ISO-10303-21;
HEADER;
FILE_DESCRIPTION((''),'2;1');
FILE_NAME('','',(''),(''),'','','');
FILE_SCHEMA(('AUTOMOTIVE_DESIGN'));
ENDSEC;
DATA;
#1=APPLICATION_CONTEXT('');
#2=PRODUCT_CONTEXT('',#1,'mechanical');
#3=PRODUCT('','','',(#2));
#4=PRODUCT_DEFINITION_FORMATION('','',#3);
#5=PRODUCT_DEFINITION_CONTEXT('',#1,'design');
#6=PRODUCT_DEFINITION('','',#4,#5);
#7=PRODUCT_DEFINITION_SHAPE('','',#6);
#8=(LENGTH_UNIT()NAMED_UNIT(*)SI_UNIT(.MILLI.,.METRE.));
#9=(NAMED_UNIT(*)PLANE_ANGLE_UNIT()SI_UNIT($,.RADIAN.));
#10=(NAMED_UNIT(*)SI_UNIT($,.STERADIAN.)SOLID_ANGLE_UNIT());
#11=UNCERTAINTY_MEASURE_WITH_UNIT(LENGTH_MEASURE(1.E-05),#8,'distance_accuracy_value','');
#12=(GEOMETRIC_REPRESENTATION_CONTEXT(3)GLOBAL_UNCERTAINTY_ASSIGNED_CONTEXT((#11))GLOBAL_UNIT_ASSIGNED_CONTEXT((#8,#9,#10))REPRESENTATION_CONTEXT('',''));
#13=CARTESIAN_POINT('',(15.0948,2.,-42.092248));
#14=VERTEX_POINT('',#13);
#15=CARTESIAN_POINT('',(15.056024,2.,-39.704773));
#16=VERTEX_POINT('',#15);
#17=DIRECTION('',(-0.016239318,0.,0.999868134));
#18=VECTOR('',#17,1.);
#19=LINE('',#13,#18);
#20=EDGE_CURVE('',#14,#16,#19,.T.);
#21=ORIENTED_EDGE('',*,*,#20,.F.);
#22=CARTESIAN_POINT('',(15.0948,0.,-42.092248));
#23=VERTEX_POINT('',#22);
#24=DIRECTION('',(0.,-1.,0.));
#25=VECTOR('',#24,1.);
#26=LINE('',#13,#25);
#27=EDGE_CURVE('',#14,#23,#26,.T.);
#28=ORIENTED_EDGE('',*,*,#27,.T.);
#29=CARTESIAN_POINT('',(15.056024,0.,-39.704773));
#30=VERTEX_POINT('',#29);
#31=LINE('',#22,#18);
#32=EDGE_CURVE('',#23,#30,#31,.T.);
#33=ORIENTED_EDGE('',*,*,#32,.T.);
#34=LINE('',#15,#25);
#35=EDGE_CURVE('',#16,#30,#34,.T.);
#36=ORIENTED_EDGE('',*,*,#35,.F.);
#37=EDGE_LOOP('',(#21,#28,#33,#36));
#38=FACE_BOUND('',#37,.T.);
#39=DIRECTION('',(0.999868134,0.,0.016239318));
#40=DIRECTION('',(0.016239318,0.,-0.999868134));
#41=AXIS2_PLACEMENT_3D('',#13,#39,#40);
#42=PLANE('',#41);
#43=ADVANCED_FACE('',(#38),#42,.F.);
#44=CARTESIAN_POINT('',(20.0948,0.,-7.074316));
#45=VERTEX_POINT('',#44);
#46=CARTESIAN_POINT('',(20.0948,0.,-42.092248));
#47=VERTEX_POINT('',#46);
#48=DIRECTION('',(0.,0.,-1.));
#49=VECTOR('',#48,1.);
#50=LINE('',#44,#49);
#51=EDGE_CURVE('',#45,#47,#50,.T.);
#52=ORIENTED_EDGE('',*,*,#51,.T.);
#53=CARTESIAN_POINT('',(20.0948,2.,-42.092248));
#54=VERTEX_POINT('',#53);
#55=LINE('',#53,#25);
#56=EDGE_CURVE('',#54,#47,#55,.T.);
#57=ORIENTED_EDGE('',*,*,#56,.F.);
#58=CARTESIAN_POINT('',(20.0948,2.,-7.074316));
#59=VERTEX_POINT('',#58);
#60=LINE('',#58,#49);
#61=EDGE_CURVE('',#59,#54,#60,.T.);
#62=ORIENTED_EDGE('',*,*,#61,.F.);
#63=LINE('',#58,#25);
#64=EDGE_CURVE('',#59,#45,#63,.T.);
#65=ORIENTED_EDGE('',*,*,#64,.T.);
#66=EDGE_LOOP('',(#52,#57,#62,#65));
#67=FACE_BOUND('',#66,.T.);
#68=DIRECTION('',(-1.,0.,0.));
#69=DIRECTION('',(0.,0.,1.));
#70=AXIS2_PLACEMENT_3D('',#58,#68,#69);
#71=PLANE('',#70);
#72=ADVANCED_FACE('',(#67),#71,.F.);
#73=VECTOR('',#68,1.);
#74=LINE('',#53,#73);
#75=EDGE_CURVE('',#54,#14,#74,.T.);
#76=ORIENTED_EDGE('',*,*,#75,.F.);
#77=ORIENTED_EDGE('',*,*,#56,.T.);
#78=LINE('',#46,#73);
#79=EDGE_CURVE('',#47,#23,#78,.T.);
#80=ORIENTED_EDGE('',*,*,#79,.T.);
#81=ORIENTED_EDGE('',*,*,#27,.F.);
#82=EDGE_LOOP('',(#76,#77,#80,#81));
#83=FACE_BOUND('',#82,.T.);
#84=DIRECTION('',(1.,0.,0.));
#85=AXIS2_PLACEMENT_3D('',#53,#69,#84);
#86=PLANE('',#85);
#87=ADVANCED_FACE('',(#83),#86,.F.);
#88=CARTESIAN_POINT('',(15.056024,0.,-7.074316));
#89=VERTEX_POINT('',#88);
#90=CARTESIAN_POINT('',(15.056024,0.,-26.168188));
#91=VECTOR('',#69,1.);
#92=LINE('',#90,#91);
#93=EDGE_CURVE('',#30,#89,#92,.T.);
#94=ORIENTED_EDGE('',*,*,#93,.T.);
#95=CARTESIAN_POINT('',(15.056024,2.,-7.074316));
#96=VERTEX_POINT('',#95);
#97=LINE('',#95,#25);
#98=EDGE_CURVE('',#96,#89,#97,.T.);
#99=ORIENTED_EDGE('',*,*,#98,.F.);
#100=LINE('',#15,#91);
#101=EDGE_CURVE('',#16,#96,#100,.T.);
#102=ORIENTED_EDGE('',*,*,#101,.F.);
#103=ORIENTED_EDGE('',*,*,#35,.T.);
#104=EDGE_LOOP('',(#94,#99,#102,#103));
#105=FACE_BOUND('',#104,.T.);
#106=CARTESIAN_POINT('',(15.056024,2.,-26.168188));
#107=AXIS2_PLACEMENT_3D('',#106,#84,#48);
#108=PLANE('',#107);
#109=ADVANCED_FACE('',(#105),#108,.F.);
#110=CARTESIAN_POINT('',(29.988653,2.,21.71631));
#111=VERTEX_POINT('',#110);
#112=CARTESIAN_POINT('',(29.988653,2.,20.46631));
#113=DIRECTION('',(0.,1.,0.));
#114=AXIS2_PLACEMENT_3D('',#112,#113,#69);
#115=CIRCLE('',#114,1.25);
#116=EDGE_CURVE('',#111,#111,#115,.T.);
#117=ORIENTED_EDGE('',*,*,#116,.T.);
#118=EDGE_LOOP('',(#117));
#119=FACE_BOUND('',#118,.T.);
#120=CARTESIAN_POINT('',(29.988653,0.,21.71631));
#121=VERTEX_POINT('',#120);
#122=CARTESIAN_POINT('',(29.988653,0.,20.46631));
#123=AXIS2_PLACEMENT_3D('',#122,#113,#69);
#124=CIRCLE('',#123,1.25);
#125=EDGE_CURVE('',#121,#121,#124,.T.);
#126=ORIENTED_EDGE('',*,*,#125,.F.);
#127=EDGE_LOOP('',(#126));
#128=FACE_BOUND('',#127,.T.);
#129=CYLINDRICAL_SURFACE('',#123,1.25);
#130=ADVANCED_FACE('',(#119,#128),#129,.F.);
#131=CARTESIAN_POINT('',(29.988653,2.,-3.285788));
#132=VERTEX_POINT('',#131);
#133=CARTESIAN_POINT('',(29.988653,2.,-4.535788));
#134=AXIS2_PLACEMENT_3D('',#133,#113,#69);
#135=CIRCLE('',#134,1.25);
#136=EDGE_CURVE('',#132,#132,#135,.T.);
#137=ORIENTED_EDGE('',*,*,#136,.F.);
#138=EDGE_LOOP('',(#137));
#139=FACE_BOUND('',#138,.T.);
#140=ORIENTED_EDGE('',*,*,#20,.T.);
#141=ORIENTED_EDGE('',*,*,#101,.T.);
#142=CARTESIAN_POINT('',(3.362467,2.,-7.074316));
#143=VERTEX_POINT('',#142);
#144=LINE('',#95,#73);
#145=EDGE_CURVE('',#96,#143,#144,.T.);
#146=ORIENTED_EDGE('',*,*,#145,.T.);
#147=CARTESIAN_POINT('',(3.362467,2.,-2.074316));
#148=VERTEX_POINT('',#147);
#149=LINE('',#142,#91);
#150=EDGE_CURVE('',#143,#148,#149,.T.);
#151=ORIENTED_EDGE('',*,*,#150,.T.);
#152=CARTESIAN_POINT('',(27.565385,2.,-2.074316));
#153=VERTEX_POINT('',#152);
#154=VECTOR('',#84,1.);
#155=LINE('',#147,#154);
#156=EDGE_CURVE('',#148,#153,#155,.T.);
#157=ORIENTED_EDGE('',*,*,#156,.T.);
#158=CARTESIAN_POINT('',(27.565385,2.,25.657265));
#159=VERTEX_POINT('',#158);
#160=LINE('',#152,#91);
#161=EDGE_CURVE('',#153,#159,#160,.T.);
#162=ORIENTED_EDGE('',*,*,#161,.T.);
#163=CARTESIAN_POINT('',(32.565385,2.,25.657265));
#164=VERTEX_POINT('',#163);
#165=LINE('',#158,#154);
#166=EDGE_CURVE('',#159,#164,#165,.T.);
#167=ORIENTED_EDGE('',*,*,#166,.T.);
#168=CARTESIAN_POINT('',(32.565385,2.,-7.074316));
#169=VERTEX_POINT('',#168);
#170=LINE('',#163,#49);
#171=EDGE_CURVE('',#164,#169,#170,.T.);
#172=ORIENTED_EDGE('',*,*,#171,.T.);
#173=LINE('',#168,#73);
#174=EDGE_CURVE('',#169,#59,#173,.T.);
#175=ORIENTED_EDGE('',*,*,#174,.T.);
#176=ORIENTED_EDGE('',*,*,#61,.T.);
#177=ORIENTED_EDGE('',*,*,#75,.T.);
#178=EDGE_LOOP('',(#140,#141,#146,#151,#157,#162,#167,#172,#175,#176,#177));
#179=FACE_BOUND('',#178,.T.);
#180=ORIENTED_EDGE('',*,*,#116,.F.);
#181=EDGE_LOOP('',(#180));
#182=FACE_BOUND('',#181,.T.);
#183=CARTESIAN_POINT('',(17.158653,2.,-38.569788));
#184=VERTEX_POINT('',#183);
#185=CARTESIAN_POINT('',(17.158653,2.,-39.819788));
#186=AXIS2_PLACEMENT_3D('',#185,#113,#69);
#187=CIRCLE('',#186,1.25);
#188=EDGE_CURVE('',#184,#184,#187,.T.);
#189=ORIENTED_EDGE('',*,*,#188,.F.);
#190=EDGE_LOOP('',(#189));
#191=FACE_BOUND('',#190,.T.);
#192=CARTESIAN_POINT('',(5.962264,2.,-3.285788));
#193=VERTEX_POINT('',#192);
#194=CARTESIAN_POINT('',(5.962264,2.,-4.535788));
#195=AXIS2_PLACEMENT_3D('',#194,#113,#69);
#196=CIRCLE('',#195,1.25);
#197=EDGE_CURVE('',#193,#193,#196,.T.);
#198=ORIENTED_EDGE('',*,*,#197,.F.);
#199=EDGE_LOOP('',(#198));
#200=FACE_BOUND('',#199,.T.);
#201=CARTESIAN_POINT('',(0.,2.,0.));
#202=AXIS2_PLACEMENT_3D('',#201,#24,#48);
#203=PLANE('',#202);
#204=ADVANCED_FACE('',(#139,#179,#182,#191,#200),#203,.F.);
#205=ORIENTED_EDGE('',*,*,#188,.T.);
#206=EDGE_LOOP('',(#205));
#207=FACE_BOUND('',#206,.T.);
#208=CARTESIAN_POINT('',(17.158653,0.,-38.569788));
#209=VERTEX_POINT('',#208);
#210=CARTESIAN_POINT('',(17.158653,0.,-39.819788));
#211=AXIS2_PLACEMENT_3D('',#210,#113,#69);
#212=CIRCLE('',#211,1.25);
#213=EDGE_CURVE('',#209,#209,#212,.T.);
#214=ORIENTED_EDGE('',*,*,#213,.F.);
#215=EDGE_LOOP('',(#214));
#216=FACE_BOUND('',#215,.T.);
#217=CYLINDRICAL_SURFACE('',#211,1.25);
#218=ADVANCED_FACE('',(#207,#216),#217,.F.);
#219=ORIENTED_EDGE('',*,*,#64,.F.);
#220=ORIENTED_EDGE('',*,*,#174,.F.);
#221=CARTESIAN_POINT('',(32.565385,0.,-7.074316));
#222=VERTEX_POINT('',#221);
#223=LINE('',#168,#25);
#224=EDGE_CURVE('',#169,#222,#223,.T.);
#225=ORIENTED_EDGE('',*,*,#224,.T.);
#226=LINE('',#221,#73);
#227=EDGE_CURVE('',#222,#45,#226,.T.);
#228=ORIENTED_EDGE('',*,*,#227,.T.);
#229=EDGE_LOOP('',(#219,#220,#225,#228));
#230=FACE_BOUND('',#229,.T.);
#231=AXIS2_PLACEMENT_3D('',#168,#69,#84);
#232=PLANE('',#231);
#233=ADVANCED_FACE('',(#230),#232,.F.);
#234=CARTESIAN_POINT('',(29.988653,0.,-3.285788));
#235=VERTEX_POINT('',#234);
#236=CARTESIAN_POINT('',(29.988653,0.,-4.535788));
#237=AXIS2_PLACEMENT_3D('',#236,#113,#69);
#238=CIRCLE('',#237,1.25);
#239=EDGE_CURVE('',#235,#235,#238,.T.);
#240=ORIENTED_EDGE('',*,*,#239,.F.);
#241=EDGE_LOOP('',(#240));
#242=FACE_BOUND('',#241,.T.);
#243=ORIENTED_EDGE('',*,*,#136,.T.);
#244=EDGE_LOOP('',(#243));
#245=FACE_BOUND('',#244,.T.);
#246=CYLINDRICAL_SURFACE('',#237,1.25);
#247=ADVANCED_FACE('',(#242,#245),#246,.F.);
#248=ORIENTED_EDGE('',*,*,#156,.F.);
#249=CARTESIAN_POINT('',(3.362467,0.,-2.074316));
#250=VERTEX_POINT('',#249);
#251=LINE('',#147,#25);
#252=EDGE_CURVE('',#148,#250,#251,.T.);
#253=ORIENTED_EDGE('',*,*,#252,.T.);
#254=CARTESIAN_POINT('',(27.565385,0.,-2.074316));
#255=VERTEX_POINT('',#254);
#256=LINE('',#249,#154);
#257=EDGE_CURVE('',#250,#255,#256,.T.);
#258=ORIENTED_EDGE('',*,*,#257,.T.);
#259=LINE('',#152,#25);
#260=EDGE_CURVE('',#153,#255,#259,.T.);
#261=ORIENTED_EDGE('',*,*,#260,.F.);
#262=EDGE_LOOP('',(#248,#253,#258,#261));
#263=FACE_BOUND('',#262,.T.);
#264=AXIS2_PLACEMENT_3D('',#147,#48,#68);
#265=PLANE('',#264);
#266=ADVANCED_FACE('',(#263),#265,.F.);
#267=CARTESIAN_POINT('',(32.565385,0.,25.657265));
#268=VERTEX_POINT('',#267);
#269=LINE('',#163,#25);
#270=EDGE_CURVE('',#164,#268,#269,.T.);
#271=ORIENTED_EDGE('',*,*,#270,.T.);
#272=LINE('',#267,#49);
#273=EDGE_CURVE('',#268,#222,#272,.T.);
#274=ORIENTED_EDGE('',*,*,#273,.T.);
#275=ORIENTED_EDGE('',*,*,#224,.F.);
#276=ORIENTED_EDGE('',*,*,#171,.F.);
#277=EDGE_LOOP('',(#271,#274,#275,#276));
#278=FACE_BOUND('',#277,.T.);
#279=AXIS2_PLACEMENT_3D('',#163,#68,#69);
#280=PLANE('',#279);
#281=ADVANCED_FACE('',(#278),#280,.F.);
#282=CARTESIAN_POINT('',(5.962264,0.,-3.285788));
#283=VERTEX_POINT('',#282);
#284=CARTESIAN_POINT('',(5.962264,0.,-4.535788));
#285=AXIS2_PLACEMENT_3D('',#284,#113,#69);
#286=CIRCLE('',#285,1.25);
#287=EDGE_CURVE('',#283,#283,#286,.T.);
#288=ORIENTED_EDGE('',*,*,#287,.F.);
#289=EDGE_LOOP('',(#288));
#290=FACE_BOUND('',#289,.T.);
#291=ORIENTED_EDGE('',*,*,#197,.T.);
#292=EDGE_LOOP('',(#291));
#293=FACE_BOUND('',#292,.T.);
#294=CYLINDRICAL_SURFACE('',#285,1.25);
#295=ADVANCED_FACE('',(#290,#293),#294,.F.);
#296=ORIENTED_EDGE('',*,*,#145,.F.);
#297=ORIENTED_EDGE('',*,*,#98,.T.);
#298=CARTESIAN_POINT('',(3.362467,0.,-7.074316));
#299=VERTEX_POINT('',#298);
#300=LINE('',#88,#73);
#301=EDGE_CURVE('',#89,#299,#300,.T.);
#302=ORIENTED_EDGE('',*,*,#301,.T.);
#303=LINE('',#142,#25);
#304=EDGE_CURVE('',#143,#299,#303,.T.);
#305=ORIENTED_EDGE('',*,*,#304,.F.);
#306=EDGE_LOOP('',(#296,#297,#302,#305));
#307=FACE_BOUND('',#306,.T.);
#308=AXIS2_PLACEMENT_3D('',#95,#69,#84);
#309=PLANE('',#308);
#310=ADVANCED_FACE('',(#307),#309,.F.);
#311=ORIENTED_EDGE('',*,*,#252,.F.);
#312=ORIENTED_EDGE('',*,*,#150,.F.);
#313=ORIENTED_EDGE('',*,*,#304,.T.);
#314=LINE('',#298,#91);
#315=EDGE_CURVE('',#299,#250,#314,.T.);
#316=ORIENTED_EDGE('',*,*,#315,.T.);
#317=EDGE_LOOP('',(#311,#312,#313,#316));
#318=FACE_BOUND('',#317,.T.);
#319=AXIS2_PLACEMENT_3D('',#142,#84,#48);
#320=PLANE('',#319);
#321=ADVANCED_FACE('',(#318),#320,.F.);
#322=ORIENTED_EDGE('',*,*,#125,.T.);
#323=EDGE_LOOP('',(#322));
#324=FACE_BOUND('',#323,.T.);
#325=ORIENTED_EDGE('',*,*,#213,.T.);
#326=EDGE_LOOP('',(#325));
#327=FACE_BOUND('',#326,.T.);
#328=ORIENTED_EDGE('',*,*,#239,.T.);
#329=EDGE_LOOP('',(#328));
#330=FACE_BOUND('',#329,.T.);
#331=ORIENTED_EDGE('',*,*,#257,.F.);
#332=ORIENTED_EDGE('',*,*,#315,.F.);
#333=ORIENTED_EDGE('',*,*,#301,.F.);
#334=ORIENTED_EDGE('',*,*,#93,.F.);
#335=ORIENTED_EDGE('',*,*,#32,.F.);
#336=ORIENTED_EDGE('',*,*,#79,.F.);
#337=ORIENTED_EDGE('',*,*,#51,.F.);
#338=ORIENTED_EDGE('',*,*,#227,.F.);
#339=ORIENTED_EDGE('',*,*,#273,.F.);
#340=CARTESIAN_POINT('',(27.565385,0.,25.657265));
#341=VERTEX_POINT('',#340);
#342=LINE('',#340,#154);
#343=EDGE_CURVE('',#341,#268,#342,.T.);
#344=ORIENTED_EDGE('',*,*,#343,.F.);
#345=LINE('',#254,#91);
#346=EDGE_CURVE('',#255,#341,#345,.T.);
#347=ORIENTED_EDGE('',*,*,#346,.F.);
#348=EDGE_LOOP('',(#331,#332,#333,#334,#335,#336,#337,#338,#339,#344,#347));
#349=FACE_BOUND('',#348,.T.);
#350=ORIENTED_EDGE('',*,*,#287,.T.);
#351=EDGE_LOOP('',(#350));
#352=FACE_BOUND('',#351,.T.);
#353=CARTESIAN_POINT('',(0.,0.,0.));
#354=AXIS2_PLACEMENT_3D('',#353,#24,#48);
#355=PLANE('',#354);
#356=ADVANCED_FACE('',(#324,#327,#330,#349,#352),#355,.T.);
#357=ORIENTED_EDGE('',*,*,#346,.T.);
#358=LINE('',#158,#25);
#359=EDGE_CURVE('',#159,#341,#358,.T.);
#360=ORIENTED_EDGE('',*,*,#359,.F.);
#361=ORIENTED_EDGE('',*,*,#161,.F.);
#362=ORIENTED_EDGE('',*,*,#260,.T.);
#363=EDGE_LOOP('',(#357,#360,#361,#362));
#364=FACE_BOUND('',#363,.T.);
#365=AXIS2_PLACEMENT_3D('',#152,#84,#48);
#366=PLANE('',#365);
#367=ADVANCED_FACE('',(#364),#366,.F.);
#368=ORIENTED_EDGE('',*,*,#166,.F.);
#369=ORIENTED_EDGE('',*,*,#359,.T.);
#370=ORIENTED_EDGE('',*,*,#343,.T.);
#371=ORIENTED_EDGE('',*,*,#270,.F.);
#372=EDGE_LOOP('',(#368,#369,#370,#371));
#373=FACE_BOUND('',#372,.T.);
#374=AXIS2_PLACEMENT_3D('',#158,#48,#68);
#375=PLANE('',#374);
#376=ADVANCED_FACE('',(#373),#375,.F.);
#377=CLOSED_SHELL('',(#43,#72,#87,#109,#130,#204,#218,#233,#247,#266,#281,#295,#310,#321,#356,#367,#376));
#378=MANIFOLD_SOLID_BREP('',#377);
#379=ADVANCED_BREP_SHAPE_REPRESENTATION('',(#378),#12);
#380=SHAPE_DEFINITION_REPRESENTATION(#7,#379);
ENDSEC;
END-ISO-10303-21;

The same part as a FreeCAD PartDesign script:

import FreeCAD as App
import Part
import Sketcher

V = App.Vector


def add_polygon(sketch, points):
    """Adds a closed chain of lines whose ends are joined by coincident constraints."""
    first, n = sketch.GeometryCount, len(points)
    for a, b in zip(points, points[1:] + points[:1]):
        sketch.addGeometry(Part.LineSegment(App.Vector(*a, 0), App.Vector(*b, 0)), False)
    for i in range(n):
        sketch.addConstraint(Sketcher.Constraint("Coincident", first + i, 2, first + (i + 1) % n, 1))

doc = App.newDocument("Part")
params = doc.addObject("Spreadsheet::Sheet", "Params")
for row, (alias, value) in enumerate([
    ("sketch1_width", "5 mm"),
    ("pad1_length", "2 mm"),
    ("sketch2_diameter", "2.5 mm"),
    ("pocket1_length", "2 mm"),
], start=1):
    params.set(f"A{row}", alias)
    params.set(f"B{row}", "=" + value)
    params.setAlias(f"B{row}", alias)

body = doc.addObject("PartDesign::Body", "Body")

sketch1 = doc.addObject("Sketcher::SketchObject", "Sketch")
body.addObject(sketch1)
sketch1.AttachmentSupport = (doc.XZ_Plane, [""])
sketch1.MapMode = "FlatFace"
add_polygon(sketch1, [(15.1, -39.7), (15.1, -7.1), (3.4, -7.1), (3.4, -2.1), (27.6, -2.1), (27.6, 25.7), (32.6, 25.7), (32.6, -7.1), (20.1, -7.1), (20.1, -42.1), (15.1, -42.1)])
sketch1.addConstraint(Sketcher.Constraint("Vertical", 0))
sketch1.addConstraint(Sketcher.Constraint("Horizontal", 1))
sketch1.addConstraint(Sketcher.Constraint("Vertical", 2))
sketch1.addConstraint(Sketcher.Constraint("Horizontal", 3))
sketch1.addConstraint(Sketcher.Constraint("Vertical", 4))
sketch1.addConstraint(Sketcher.Constraint("Horizontal", 5))
sketch1.addConstraint(Sketcher.Constraint("Vertical", 6))
sketch1.addConstraint(Sketcher.Constraint("Horizontal", 7))
sketch1.addConstraint(Sketcher.Constraint("Vertical", 8))
sketch1.addConstraint(Sketcher.Constraint("Horizontal", 9))
sketch1.addConstraint(Sketcher.Constraint("Horizontal", 1, 2, 6, 2))
sketch1.addConstraint(Sketcher.Constraint("Equal", 5, 9))
sketch1.addConstraint(Sketcher.Constraint("Equal", 9, 2))
sketch1.addConstraint(Sketcher.Constraint("DistanceX", 5, 1, 5, 2, 5.0))
sketch1.addConstraint(Sketcher.Constraint("DistanceX", 3, 1, 3, 2, 24.202919))
sketch1.addConstraint(Sketcher.Constraint("DistanceY", 4, 1, 4, 2, 27.731582))
sketch1.addConstraint(Sketcher.Constraint("DistanceX", -1, 1, 7, 2, 20.0948))
sketch1.addConstraint(Sketcher.Constraint("Distance", 10, 2.38779))
sketch1.addConstraint(Sketcher.Constraint("DistanceX", 1, 2, 1, 1, 11.693557))
sketch1.addConstraint(Sketcher.Constraint("DistanceX", 7, 2, 7, 1, 12.470585))
sketch1.addConstraint(Sketcher.Constraint("DistanceY", 0, 1, 0, 2, 32.630457))
sketch1.addConstraint(Sketcher.Constraint("DistanceY", 8, 2, -1, 1, 42.092248))
sketch1.setExpression("Constraints[24]", "Params.sketch1_width")
pad1 = doc.addObject("PartDesign::Pad", "Pad")
body.addObject(pad1)
pad1.Profile = sketch1
pad1.setExpression("Length", "Params.pad1_length")
pad1.Reversed = True

sketch2 = doc.addObject("Sketcher::SketchObject", "Sketch001")
body.addObject(sketch2)
sketch2.AttachmentSupport = (doc.XZ_Plane, [""])
sketch2.MapMode = "FlatFace"
sketch2.AttachmentOffset = App.Placement(V(0, 0, -2), App.Rotation())
sketch2.addGeometry(Part.Circle(V(17.2, -39.8, 0), V(0, 0, 1), 1.2), False)
sketch2.addGeometry(Part.Circle(V(6, -4.5, 0), V(0, 0, 1), 1.2), False)
sketch2.addGeometry(Part.Circle(V(30, -4.5, 0), V(0, 0, 1), 1.2), False)
sketch2.addGeometry(Part.Circle(V(30, 20.5, 0), V(0, 0, 1), 1.2), False)
sketch2.addConstraint(Sketcher.Constraint("Equal", 0, 1))
sketch2.addConstraint(Sketcher.Constraint("Equal", 1, 2))
sketch2.addConstraint(Sketcher.Constraint("Equal", 2, 3))
sketch2.addConstraint(Sketcher.Constraint("Horizontal", 1, 3, 2, 3))
sketch2.addConstraint(Sketcher.Constraint("Vertical", 2, 3, 3, 3))
sketch2.addConstraint(Sketcher.Constraint("Diameter", 0, 2.5))
sketch2.addConstraint(Sketcher.Constraint("DistanceX", 0, 3, 2, 3, 12.83))
sketch2.addConstraint(Sketcher.Constraint("DistanceY", 0, 3, 1, 3, 35.284))
sketch2.addConstraint(Sketcher.Constraint("DistanceY", -1, 1, 3, 3, 20.46631))
sketch2.addConstraint(Sketcher.Constraint("DistanceX", 1, 3, 0, 3, 11.19639))
sketch2.addConstraint(Sketcher.Constraint("DistanceX", -1, 1, 0, 3, 17.158653))
sketch2.addConstraint(Sketcher.Constraint("DistanceY", 0, 3, -1, 1, 39.819788))
sketch2.setExpression("Constraints[5]", "Params.sketch2_diameter")
pocket1 = doc.addObject("PartDesign::Pocket", "Pocket")
body.addObject(pocket1)
pocket1.Profile = sketch2
pocket1.setExpression("Length", "Params.pocket1_length")
pocket1.Reversed = True

doc.recompute()
